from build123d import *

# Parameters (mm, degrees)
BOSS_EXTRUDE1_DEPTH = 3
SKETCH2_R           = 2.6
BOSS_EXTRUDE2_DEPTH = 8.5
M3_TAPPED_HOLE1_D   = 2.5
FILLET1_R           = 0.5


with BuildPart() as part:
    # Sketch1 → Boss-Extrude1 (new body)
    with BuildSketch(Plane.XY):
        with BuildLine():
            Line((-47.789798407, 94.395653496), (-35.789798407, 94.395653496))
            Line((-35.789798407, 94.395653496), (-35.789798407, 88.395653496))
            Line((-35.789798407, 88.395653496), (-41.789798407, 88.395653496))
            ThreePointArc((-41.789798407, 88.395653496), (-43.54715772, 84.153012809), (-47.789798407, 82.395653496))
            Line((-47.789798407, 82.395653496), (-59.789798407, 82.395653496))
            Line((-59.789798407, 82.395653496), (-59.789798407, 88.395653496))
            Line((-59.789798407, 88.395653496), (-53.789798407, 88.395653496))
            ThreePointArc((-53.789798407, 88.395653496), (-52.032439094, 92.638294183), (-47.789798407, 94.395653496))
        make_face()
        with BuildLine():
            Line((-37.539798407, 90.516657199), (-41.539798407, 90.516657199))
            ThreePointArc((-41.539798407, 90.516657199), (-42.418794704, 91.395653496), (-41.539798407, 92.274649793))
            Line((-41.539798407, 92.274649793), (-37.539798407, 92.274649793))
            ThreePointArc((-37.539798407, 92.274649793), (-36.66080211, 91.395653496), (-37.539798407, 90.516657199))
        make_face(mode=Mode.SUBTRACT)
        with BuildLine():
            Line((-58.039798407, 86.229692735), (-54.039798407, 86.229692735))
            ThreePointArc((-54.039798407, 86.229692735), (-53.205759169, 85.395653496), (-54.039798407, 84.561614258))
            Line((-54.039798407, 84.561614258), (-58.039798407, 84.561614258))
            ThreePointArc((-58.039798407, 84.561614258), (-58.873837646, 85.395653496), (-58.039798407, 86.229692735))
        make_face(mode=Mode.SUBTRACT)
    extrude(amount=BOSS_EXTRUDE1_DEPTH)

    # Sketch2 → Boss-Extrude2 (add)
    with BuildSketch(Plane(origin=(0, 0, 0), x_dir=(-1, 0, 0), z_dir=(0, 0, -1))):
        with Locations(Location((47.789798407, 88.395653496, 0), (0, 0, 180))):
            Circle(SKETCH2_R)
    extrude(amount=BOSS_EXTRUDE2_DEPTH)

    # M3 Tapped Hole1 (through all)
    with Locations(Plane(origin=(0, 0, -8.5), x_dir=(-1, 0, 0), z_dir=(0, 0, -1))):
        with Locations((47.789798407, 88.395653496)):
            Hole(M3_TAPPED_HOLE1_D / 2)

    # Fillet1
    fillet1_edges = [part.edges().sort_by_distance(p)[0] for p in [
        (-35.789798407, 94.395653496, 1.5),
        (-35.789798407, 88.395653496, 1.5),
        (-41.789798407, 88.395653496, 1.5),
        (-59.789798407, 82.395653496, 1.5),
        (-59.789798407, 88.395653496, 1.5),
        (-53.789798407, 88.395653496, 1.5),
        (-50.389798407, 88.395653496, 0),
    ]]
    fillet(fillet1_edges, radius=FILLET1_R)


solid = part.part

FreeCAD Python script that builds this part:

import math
import FreeCAD as App
import Part
import Sketcher

V = App.Vector


def edges_at(feature, points):
    """Names of the edges that pass closest to the given points."""
    edges = feature.Shape.Edges
    near = lambda p: min(range(len(edges)), key=lambda i: edges[i].distToShape(Part.Vertex(*p))[0])
    return sorted({f"Edge{near(p) + 1}" for p in points})

doc = App.newDocument("Part")
body = doc.addObject("PartDesign::Body", "Body")

# Sketch on XY plane
sketch1 = body.newObject("Sketcher::SketchObject", "Sketch")
sketch1.AttachmentSupport = (doc.getObject("XY_Plane"), [""])
sketch1.MapMode = "FlatFace"
sketch1.addGeometry([
    Part.LineSegment(V(-35.8, 94.4, 0), V(-47.8, 94.4, 0)),  # 0
    Part.ArcOfCircle(Part.Circle(V(-47.8, 88.4, 0), V(0, 0, 1), 6), math.radians(90), math.radians(180)),  # 1
    Part.LineSegment(V(-53.8, 88.4, 0), V(-59.8, 88.4, 0)),  # 2
    Part.LineSegment(V(-59.8, 88.4, 0), V(-59.8, 82.4, 0)),  # 3
    Part.LineSegment(V(-59.8, 82.4, 0), V(-47.8, 82.4, 0)),  # 4
    Part.ArcOfCircle(Part.Circle(V(-47.8, 88.4, 0), V(0, 0, 1), 6), math.radians(-90), math.radians(0)),  # 5
    Part.LineSegment(V(-41.8, 88.4, 0), V(-35.8, 88.4, 0)),  # 6
    Part.LineSegment(V(-35.8, 88.4, 0), V(-35.8, 94.4, 0)),  # 7
    Part.LineSegment(V(-58, 86.2, 0), V(-54, 86.2, 0)),  # 8
    Part.ArcOfCircle(Part.Circle(V(-54, 85.4, 0), V(0, 0, 1), 0.8), math.radians(-90), math.radians(90)),  # 9
    Part.LineSegment(V(-54, 84.6, 0), V(-58, 84.6, 0)),  # 10
    Part.ArcOfCircle(Part.Circle(V(-58, 85.4, 0), V(0, 0, 1), 0.8), math.radians(90), math.radians(270)),  # 11
    Part.LineSegment(V(-37.5, 90.5, 0), V(-41.5, 90.5, 0)),  # 12
    Part.ArcOfCircle(Part.Circle(V(-41.5, 91.4, 0), V(0, 0, 1), 0.9), math.radians(90), math.radians(270)),  # 13
    Part.LineSegment(V(-41.5, 92.3, 0), V(-37.5, 92.3, 0)),  # 14
    Part.ArcOfCircle(Part.Circle(V(-37.5, 91.4, 0), V(0, 0, 1), 0.9), math.radians(-90), math.radians(90)),  # 15
], False)
sketch1.addConstraint([
    Sketcher.Constraint("Tangent", 0, 2, 1, 1),
    Sketcher.Constraint("Coincident", 1, 2, 2, 1),
    Sketcher.Constraint("Coincident", 2, 2, 3, 1),
    Sketcher.Constraint("Coincident", 3, 2, 4, 1),
    Sketcher.Constraint("Tangent", 4, 2, 5, 1),
    Sketcher.Constraint("Coincident", 5, 2, 6, 1),
    Sketcher.Constraint("Coincident", 6, 2, 7, 1),
    Sketcher.Constraint("Coincident", 7, 2, 0, 1),
    Sketcher.Constraint("Tangent", 8, 2, 9, 2),
    Sketcher.Constraint("Tangent", 9, 1, 10, 1),
    Sketcher.Constraint("Tangent", 10, 2, 11, 2),
    Sketcher.Constraint("Tangent", 11, 1, 8, 1),
    Sketcher.Constraint("Tangent", 12, 2, 13, 2),
    Sketcher.Constraint("Tangent", 13, 1, 14, 1),
    Sketcher.Constraint("Tangent", 14, 2, 15, 2),
    Sketcher.Constraint("Tangent", 15, 1, 12, 1),
    Sketcher.Constraint("Horizontal", 0),
    Sketcher.Constraint("Horizontal", 2),
    Sketcher.Constraint("Vertical", 3),
    Sketcher.Constraint("Horizontal", 4),
    Sketcher.Constraint("Horizontal", 6),
    Sketcher.Constraint("Vertical", 7),
    Sketcher.Constraint("Horizontal", 8),
    Sketcher.Constraint("Horizontal", 10),
    Sketcher.Constraint("Horizontal", 12),
    Sketcher.Constraint("Horizontal", 14),
    Sketcher.Constraint("Coincident", 5, 3, 1, 3),
    Sketcher.Constraint("Equal", 1, 5),
    Sketcher.Constraint("Horizontal", 5, 3, 1, 2),
    Sketcher.Constraint("Horizontal", 2, 2, 5, 2),
    Sketcher.Constraint("Equal", 0, 4),
    Sketcher.Constraint("Equal", 10, 12),
    Sketcher.Constraint("Equal", 6, 3),
    Sketcher.Constraint("Radius", 1, 6.0),
    Sketcher.Constraint("DistanceX", 8, 1, 8, 2, 4.0),
    Sketcher.Constraint("DistanceY", 9, 3, 1, 3, 3.0),
    Sketcher.Constraint("DistanceY", 1, 3, 13, 3, 3.0),
    Sketcher.Constraint("DistanceX", 9, 3, 13, 3, 12.5),
    Sketcher.Constraint("Radius", 9, 0.834039),
    Sketcher.Constraint("DistanceX", 9, 3, 1, 3, 6.25),
    Sketcher.Constraint("Radius", 13, 0.878996),
    Sketcher.Constraint("DistanceX", 1, 3, -1, 1, 47.789798),
    Sketcher.Constraint("DistanceY", -1, 1, 13, 1, 92.27465),
])
pad1 = body.newObject("PartDesign::Pad", "Pad")
pad1.Profile = sketch1
pad1.Length = 3

# Sketch on XY plane
sketch2 = body.newObject("Sketcher::SketchObject", "Sketch001")
sketch2.AttachmentSupport = (doc.getObject("XY_Plane"), [""])
sketch2.MapMode = "FlatFace"
sketch2.addGeometry(Part.Circle(V(-47.8, 88.4, 0), V(0, 0, 1), 2.6), False)
sketch2.addConstraint([
    Sketcher.Constraint("Diameter", 0, 5.2),
    Sketcher.Constraint("DistanceX", 0, 3, -1, 1, 47.789798),
    Sketcher.Constraint("DistanceY", -1, 1, 0, 3, 88.395653),
])
pad2 = body.newObject("PartDesign::Pad", "Pad001")
pad2.Profile = sketch2
pad2.Length = 8.5
pad2.Reversed = True

# Sketch on XY plane
sketch3 = body.newObject("Sketcher::SketchObject", "Sketch002")
sketch3.AttachmentSupport = (doc.getObject("XY_Plane"), [""])
sketch3.MapMode = "FlatFace"
sketch3.AttachmentOffset = App.Placement(V(0, 0, -8.5), App.Rotation())
sketch3.addGeometry(Part.Circle(V(-47.8, 88.4, 0), V(0, 0, 1), 1.2), False)
sketch3.addConstraint([
    Sketcher.Constraint("Diameter", 0, 2.5),
    Sketcher.Constraint("DistanceX", 0, 3, -1, 1, 47.789798),
    Sketcher.Constraint("DistanceY", -1, 1, 0, 3, 88.395653),
])
doc.recompute()
hole = body.newObject("PartDesign::Hole", "Hole")
hole.Profile = sketch3
hole.ThreadType = "None"
hole.Diameter = 2.5
hole.DepthType = "ThroughAll"
hole.Reversed = True
doc.recompute()

fillet = body.newObject("PartDesign::Fillet", "Fillet")
fillet.Base = (hole, edges_at(hole, [
    (-35.79, 94.396, 1.5),
    (-35.79, 88.396, 1.5),
    (-41.79, 88.396, 1.5),
    (-59.79, 82.396, 1.5),
    (-59.79, 88.396, 1.5),
    (-53.79, 88.396, 1.5),
    (-50.39, 88.396, 0),
]))
fillet.Radius = 0.5

doc.recompute()
